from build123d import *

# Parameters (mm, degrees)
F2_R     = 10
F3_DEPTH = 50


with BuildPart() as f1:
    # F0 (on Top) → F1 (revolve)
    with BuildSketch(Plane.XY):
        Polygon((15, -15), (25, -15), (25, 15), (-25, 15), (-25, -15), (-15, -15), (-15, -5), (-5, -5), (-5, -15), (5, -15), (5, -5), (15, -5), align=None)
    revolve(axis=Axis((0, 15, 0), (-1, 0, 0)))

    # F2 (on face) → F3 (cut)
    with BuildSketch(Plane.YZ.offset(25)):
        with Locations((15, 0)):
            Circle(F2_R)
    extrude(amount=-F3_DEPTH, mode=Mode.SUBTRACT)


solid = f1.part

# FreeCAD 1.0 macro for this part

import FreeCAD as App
import Part
import Sketcher
Q = App.Units.Quantity


def add_polygon(sketch, points):
    """Adds a closed chain of lines whose ends are joined by coincident constraints."""
    first, n = sketch.GeometryCount, len(points)
    for a, b in zip(points, points[1:] + points[:1]):
        sketch.addGeometry(Part.LineSegment(App.Vector(*a, 0), App.Vector(*b, 0)), False)
    for i in range(n):
        sketch.addConstraint(Sketcher.Constraint("Coincident", first + i, 2, first + (i + 1) % n, 1))

doc = App.newDocument("Part")
params = doc.addObject("Spreadsheet::Sheet", "Params")
for row, (alias, value) in enumerate([
    ("sketch1_width", "10 mm"),
    ("sketch1_height", "30 mm"),
    ("revolution_angle", "360 deg"),
    ("sketch2_diameter", "20 mm"),
    ("pocket1_length", "50 mm"),
], start=1):
    params.set(f"A{row}", alias)
    params.set(f"B{row}", "=" + value)
    params.setAlias(f"B{row}", alias)

body = doc.addObject("PartDesign::Body", "Body")

# Sketch on XY plane
sketch1 = body.newObject("Sketcher::SketchObject", "Sketch")
sketch1.AttachmentSupport = (doc.getObject("XY_Plane"), [""])
sketch1.MapMode = "FlatFace"
add_polygon(sketch1, [(15, -15), (25, -15), (25, 15), (-25, 15), (-25, -15), (-15, -15), (-15, -5), (-5, -5), (-5, -15), (5, -15), (5, -5), (15, -5)])  # lines 0-11
sketch1.addGeometry(Part.LineSegment(App.Vector(25, 15, 0), App.Vector(-25, 15, 0)), True)  # axis
sketch1.addConstraint(Sketcher.Constraint("Horizontal", 0))
sketch1.addConstraint(Sketcher.Constraint("Vertical", 1))
sketch1.addConstraint(Sketcher.Constraint("Horizontal", 2))
sketch1.addConstraint(Sketcher.Constraint("Vertical", 3))
sketch1.addConstraint(Sketcher.Constraint("Horizontal", 4))
sketch1.addConstraint(Sketcher.Constraint("Vertical", 5))
sketch1.addConstraint(Sketcher.Constraint("Horizontal", 6))
sketch1.addConstraint(Sketcher.Constraint("Vertical", 7))
sketch1.addConstraint(Sketcher.Constraint("Horizontal", 8))
sketch1.addConstraint(Sketcher.Constraint("Vertical", 9))
sketch1.addConstraint(Sketcher.Constraint("Horizontal", 10))
sketch1.addConstraint(Sketcher.Constraint("Vertical", 11))
sketch1.addConstraint(Sketcher.Constraint("Horizontal", 12))
sketch1.addConstraint(Sketcher.Constraint("Coincident", 12, 1, 1, 2))
sketch1.addConstraint(Sketcher.Constraint("Symmetric", 0, 2, 2, 2, -1, 1))
sketch1.addConstraint(Sketcher.Constraint("Symmetric", 6, 2, 9, 2, -2))
sketch1.addConstraint(Sketcher.Constraint("Symmetric", 4, 2, 11, 2, -2))
sketch1.addConstraint(Sketcher.Constraint("Horizontal", 4, 2, 7, 2))
sketch1.addConstraint(Sketcher.Constraint("Vertical", 3, 2, 12, 2))
sketch1.addConstraint(Sketcher.Constraint("Equal", 4, 6))
sketch1.addConstraint(Sketcher.Constraint("Equal", 6, 8))
sketch1.addConstraint(Sketcher.Constraint("Equal", 10, 5))
sketch1.addConstraint(Sketcher.Constraint("DistanceX", 0, 1, 0, 2, Q("10 mm")))
sketch1.addConstraint(Sketcher.Constraint("DistanceY", 1, 1, 1, 2, Q("30 mm")))
sketch1.setExpression("Constraints[34]", "Params.sketch1_width")
sketch1.setExpression("Constraints[35]", "Params.sketch1_height")
revolution = body.newObject("PartDesign::Revolution", "Revolution")
revolution.Profile = sketch1
revolution.ReferenceAxis = (sketch1, ["Axis0"])
revolution.setExpression("Angle", "Params.revolution_angle")

# Sketch on YZ plane
sketch2 = body.newObject("Sketcher::SketchObject", "Sketch001")
sketch2.AttachmentSupport = (doc.getObject("YZ_Plane"), [""])
sketch2.MapMode = "FlatFace"
sketch2.AttachmentOffset = App.Placement(App.Vector(0, 0, 25), App.Rotation())
sketch2.addGeometry(Part.Circle(App.Vector(15, 0, 0), App.Vector(0, 0, 1), 10), False)
sketch2.addConstraint(Sketcher.Constraint("PointOnObject", 0, 3, -1))
sketch2.addConstraint(Sketcher.Constraint("Diameter", 0, Q("20 mm")))
sketch2.addConstraint(Sketcher.Constraint("DistanceX", -1, 1, 0, 3, Q("15 mm")))
sketch2.setExpression("Constraints[1]", "Params.sketch2_diameter")
pocket1 = body.newObject("PartDesign::Pocket", "Pocket")
pocket1.Profile = sketch2
pocket1.setExpression("Length", "Params.pocket1_length")

doc.recompute()
